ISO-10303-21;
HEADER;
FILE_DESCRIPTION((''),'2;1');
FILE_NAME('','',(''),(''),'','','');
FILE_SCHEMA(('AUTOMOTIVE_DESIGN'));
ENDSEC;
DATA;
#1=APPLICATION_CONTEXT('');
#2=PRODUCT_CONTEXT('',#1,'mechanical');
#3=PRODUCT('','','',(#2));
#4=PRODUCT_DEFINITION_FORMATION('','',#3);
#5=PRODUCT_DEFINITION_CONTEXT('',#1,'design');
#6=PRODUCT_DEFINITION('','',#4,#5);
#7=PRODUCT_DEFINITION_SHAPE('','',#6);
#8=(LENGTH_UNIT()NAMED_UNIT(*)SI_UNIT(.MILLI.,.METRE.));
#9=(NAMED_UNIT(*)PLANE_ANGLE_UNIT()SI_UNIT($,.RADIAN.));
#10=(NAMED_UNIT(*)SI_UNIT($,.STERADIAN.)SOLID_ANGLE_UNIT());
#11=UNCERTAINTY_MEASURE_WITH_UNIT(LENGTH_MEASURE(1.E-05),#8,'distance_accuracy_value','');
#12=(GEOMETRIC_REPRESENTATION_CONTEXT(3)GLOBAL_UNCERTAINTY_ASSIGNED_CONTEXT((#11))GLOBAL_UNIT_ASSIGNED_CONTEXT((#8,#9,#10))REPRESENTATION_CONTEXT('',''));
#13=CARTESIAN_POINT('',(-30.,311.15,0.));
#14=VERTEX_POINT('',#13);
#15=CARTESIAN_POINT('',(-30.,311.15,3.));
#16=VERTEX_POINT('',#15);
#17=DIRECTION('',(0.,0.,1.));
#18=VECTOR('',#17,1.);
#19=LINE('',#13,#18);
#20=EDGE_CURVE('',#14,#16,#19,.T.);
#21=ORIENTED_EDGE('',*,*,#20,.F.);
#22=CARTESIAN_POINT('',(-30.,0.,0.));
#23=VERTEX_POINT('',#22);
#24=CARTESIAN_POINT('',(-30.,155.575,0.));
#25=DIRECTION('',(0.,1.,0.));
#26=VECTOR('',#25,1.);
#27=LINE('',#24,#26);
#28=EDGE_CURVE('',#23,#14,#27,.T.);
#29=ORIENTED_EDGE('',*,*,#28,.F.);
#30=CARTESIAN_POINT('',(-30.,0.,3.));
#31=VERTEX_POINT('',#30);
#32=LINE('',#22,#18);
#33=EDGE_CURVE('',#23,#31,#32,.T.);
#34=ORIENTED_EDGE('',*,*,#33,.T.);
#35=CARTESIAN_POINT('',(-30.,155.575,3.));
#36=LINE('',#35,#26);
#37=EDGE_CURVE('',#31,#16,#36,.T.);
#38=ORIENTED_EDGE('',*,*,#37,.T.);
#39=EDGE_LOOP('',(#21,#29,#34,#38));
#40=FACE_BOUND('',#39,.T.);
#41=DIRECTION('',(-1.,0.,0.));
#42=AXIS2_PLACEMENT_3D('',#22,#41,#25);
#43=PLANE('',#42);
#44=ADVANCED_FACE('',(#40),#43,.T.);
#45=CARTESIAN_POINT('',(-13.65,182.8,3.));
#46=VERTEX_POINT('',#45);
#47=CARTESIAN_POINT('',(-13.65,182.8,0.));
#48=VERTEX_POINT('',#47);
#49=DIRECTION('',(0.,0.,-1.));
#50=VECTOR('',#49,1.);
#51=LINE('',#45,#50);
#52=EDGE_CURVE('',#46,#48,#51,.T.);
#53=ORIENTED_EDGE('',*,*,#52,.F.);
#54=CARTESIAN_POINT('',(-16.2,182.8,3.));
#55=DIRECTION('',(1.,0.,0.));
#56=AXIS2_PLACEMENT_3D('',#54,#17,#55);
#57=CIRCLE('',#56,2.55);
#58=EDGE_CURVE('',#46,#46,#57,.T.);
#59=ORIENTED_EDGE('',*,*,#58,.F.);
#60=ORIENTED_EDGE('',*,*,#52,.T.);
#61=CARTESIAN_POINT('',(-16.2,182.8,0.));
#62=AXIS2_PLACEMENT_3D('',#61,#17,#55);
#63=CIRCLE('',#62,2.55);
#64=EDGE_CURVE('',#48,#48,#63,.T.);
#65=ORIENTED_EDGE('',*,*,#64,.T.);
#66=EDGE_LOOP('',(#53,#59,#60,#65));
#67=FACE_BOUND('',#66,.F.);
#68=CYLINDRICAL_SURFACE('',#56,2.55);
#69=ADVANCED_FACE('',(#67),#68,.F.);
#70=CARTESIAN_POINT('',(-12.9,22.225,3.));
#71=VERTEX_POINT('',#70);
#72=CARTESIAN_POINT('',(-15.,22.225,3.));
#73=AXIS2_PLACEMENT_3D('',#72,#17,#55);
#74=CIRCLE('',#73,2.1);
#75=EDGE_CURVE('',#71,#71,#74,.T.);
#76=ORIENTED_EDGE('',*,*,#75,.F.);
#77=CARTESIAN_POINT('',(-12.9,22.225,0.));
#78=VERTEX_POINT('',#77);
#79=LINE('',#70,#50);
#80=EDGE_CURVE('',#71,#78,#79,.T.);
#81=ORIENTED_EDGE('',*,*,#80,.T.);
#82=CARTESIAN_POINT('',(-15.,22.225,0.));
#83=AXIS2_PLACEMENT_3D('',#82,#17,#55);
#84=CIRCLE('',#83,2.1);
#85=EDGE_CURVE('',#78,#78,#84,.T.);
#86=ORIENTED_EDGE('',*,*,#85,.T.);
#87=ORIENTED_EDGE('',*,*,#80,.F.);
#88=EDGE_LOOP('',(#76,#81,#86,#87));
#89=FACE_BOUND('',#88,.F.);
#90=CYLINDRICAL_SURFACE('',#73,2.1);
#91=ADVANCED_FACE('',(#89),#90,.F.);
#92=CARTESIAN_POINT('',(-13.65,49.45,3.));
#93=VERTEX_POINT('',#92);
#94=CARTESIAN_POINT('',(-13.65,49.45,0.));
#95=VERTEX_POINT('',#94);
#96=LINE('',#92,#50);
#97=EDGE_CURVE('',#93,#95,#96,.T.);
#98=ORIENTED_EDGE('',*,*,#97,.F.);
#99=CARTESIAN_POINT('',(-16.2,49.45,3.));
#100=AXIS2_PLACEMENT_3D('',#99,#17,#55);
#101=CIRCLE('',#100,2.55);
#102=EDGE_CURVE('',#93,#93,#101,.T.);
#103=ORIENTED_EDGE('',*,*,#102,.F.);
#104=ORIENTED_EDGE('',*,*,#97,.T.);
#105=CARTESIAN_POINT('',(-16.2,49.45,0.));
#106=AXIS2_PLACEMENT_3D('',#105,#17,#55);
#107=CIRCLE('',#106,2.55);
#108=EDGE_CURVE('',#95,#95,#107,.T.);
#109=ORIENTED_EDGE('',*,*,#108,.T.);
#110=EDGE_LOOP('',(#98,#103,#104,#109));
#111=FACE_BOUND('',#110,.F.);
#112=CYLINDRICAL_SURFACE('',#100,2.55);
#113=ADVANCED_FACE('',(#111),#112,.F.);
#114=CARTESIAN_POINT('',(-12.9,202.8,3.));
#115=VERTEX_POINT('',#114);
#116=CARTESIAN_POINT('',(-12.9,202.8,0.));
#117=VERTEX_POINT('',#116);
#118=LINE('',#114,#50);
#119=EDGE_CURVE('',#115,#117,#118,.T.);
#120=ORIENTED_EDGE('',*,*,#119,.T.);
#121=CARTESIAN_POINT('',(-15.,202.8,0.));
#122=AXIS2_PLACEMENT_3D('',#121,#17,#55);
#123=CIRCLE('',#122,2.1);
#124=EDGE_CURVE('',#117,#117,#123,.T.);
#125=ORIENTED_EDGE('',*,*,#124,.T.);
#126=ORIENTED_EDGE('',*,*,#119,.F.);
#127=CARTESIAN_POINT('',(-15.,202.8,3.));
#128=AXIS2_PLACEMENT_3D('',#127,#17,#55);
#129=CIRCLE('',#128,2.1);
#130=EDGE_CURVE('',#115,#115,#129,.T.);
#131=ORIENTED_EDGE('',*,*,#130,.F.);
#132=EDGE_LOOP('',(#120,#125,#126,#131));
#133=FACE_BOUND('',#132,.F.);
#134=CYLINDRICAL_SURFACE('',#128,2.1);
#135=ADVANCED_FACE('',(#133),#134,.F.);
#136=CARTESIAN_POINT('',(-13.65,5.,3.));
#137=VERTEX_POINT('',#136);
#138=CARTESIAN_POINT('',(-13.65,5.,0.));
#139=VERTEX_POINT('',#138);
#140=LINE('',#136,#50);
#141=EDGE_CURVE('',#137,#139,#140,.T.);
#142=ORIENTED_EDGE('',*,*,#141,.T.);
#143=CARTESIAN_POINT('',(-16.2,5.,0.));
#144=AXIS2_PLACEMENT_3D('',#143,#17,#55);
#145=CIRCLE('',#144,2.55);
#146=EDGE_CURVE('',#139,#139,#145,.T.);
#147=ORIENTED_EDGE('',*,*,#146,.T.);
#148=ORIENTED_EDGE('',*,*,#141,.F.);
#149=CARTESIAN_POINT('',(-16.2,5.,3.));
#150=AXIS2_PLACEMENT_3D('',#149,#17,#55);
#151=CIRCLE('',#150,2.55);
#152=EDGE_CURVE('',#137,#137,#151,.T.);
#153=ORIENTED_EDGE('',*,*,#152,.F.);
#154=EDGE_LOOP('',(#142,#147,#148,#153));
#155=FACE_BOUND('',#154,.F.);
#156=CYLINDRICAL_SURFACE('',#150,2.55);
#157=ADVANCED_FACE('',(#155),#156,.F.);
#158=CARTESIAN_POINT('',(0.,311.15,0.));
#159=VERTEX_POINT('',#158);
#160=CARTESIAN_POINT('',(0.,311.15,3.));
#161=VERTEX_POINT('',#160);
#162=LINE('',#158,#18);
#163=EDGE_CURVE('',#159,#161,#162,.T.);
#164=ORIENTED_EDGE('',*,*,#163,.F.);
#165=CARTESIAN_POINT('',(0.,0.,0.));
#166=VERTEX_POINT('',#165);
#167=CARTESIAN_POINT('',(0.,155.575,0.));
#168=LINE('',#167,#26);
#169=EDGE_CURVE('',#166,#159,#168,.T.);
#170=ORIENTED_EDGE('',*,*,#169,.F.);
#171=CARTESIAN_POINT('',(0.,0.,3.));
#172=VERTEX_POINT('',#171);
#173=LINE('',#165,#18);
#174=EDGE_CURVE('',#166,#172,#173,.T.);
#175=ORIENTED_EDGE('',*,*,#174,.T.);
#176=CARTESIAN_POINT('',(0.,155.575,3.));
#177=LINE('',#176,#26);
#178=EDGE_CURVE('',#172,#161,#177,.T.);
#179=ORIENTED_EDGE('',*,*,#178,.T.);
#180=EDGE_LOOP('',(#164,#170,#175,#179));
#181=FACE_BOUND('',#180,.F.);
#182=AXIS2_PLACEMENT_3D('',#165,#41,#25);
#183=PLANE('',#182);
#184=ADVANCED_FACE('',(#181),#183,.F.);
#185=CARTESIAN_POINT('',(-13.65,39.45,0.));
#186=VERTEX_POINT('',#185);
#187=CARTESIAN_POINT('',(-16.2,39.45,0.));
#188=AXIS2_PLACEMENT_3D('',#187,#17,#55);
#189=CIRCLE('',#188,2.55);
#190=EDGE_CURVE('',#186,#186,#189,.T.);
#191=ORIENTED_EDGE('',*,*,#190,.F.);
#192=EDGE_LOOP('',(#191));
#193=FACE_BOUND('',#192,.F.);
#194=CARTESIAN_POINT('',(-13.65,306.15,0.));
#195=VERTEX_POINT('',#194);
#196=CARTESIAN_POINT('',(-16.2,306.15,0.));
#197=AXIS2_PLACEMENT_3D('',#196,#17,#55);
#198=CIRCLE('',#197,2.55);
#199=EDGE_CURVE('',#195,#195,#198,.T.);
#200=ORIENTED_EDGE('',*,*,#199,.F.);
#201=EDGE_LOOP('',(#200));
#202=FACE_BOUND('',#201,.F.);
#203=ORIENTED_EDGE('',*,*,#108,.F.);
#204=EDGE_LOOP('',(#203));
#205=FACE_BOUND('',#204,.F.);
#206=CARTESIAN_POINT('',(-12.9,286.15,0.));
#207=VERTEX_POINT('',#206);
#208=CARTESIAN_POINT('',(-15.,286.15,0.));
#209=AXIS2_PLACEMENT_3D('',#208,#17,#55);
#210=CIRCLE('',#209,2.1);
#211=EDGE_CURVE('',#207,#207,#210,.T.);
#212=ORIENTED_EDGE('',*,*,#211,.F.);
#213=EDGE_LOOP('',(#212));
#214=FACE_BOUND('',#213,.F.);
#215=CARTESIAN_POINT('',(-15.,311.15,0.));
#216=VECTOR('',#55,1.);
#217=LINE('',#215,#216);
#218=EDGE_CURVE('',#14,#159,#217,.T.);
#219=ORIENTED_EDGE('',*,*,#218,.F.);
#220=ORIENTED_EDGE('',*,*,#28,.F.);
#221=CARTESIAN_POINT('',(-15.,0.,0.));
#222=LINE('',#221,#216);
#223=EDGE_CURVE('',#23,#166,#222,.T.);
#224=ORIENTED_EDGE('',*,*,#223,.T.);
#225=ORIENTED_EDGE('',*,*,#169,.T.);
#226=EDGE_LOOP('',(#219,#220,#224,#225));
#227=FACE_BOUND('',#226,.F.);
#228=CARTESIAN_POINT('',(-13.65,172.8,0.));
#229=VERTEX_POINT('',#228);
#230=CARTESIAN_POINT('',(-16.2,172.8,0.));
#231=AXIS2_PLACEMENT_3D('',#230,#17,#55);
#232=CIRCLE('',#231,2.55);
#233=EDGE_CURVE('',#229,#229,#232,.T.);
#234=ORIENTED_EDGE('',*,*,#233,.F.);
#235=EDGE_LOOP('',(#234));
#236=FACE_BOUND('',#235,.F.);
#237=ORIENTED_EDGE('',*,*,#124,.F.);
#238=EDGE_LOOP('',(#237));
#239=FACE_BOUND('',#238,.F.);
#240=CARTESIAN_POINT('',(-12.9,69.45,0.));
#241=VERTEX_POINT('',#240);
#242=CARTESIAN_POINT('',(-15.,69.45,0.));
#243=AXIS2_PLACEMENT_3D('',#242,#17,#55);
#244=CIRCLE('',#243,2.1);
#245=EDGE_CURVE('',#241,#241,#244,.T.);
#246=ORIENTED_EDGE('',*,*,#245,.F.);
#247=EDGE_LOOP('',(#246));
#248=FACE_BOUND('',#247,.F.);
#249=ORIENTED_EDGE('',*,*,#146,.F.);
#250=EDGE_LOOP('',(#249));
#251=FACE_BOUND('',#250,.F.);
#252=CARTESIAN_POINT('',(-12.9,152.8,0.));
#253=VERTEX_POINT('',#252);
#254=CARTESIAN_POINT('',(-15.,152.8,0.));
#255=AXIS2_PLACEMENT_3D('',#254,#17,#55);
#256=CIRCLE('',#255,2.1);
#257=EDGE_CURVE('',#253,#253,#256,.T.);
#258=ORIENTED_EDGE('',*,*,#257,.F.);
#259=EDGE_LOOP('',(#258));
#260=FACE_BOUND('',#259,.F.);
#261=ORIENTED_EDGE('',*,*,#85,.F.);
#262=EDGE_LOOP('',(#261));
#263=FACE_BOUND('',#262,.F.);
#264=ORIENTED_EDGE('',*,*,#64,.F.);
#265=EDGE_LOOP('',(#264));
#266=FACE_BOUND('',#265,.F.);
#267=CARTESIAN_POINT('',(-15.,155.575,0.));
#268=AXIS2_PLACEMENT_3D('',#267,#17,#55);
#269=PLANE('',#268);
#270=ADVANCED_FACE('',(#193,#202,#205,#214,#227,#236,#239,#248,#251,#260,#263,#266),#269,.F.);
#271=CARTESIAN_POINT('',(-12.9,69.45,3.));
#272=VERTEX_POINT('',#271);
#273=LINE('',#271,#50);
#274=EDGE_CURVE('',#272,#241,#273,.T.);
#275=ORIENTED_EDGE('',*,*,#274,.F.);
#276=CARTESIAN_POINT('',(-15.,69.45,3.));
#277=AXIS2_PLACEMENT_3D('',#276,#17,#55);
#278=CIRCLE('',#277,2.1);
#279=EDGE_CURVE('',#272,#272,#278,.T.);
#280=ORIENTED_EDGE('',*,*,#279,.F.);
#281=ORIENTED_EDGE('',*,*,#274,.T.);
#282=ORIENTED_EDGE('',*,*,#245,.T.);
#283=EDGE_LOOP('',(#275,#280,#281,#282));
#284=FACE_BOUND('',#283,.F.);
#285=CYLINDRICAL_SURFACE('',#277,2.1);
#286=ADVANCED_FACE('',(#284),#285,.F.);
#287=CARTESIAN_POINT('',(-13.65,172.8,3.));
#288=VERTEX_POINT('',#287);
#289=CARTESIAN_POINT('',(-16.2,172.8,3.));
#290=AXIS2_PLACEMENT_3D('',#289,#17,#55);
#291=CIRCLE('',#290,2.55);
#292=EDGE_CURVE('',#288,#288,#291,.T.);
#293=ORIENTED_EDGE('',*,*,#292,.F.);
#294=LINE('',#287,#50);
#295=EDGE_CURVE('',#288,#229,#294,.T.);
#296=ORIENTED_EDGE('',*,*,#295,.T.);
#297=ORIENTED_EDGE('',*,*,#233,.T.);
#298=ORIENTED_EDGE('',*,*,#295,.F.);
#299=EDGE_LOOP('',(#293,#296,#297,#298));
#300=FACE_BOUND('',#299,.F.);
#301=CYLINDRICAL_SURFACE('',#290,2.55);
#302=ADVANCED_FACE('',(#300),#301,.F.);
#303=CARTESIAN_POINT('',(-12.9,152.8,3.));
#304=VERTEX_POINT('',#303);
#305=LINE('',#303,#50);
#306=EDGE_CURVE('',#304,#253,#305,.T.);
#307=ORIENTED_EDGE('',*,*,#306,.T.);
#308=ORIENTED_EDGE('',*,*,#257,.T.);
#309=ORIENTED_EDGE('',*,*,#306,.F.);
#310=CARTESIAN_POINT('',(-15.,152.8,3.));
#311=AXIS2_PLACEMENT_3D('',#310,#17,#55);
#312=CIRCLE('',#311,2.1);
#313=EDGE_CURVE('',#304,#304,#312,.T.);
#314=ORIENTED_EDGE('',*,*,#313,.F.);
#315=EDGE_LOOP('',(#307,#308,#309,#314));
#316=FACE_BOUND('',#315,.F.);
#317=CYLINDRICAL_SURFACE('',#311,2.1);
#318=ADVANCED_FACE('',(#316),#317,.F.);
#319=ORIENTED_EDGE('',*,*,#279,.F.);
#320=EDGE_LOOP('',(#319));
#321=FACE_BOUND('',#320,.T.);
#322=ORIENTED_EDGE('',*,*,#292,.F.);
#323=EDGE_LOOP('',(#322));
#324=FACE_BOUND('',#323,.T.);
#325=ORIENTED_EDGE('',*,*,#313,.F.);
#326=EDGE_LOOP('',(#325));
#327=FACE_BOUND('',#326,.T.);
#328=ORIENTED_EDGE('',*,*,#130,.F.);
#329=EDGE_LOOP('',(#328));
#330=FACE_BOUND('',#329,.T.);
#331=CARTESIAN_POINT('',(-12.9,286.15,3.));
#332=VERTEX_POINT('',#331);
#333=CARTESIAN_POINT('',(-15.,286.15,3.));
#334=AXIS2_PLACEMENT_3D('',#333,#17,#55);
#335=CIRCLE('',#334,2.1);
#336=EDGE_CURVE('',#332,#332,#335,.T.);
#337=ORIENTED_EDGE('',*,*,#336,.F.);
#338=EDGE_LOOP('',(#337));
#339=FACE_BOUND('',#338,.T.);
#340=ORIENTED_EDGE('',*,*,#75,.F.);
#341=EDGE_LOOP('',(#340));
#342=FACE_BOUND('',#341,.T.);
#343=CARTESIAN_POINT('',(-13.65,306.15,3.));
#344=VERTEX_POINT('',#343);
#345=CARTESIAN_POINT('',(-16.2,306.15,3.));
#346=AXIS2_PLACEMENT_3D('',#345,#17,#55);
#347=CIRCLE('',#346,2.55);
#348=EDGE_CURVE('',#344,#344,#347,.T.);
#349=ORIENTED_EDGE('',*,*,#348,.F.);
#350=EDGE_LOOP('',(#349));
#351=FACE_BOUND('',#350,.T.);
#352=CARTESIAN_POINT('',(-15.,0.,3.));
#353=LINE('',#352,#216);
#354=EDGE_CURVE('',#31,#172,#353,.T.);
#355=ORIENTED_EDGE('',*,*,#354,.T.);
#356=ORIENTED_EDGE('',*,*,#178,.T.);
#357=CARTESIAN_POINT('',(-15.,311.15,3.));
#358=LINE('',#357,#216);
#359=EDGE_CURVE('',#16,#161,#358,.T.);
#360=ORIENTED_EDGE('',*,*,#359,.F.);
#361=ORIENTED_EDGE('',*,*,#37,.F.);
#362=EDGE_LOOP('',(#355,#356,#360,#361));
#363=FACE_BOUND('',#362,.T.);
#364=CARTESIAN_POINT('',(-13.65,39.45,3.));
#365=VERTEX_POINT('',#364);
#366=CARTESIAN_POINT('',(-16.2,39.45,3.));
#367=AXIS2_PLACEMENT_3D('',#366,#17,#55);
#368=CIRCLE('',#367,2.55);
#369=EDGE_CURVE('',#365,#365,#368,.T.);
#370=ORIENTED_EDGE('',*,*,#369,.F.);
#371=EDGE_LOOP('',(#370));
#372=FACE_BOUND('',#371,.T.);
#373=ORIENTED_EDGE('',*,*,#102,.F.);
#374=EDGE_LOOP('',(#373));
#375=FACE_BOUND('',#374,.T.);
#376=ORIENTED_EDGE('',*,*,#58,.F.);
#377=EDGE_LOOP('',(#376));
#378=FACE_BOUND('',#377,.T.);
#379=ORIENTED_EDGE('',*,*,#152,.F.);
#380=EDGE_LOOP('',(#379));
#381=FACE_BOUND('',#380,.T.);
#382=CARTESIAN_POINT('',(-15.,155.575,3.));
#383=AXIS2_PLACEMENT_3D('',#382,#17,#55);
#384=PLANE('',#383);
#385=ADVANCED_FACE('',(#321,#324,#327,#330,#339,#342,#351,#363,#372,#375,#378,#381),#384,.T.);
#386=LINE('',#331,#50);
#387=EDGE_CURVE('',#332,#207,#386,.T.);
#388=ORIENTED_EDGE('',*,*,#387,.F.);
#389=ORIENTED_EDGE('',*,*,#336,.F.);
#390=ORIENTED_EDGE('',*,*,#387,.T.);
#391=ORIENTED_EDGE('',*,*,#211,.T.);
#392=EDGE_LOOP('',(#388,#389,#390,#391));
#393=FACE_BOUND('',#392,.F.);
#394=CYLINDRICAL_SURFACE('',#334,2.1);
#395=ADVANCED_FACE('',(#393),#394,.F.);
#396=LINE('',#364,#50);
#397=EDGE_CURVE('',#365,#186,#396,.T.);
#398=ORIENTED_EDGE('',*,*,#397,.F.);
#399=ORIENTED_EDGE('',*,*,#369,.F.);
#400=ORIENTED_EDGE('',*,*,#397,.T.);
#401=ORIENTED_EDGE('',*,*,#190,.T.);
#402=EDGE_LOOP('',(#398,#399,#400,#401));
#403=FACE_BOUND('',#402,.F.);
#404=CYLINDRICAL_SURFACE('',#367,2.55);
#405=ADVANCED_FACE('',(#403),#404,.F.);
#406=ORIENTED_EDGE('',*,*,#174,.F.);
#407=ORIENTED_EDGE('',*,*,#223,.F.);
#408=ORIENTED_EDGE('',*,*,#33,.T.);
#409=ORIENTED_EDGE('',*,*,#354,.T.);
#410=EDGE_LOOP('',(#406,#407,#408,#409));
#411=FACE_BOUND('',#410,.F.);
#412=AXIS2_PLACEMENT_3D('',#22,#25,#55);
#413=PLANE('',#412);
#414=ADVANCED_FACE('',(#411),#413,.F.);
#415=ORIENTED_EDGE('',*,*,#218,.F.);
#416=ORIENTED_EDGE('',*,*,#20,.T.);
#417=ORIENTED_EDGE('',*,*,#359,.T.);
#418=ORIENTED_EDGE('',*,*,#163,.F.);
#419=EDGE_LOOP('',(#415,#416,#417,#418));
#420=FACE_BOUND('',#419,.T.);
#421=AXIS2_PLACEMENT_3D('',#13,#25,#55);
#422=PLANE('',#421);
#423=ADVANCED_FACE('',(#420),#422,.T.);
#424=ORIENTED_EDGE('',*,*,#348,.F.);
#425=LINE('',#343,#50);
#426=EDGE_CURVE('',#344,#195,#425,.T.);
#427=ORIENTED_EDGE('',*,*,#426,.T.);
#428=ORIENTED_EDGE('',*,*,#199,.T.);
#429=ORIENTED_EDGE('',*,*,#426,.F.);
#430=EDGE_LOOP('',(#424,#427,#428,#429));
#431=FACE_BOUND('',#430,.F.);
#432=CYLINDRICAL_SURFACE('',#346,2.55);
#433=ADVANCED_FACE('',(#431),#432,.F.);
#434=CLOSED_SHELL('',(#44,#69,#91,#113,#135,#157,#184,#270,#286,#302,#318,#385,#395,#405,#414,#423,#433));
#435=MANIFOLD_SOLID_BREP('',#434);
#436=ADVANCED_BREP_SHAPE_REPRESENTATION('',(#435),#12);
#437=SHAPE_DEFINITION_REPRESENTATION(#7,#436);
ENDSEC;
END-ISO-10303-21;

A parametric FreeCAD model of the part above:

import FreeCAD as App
import Part
import Sketcher
from FreeCAD import Vector
Q = App.Units.Quantity


def add_polygon(sketch, points):
    """Adds a closed chain of lines whose ends are joined by coincident constraints."""
    first, n = sketch.GeometryCount, len(points)
    for a, b in zip(points, points[1:] + points[:1]):
        sketch.addGeometry(Part.LineSegment(App.Vector(*a, 0), App.Vector(*b, 0)), False)
    for i in range(n):
        sketch.addConstraint(Sketcher.Constraint("Coincident", first + i, 2, first + (i + 1) % n, 1))

doc = App.newDocument("Part")
body = doc.addObject("PartDesign::Body", "Body")

# Sketch on XY plane
sketch1 = body.newObject("Sketcher::SketchObject", "Sketch")
sketch1.AttachmentSupport = (doc.getObject("XY_Plane"), [""])
sketch1.MapMode = "FlatFace"
add_polygon(sketch1, [(-30, 311), (-30, 0), (0, 0), (0, 311)])  # lines 0-3
sketch1.addConstraint(Sketcher.Constraint("Vertical", 0))
sketch1.addConstraint(Sketcher.Constraint("Horizontal", 1))
sketch1.addConstraint(Sketcher.Constraint("Vertical", 2))
sketch1.addConstraint(Sketcher.Constraint("Horizontal", 3))
sketch1.addConstraint(Sketcher.Constraint("Coincident", 1, 2, -1, 1))
sketch1.addConstraint(Sketcher.Constraint("DistanceX", 1, 1, 1, 2, Q("30 mm")))
sketch1.addConstraint(Sketcher.Constraint("DistanceY", 0, 2, 0, 1, Q("311.15 mm")))
pad1 = body.newObject("PartDesign::Pad", "Pad")
pad1.Profile = sketch1
pad1.Length = 3

# Sketch on XY plane
sketch2 = body.newObject("Sketcher::SketchObject", "Sketch001")
sketch2.AttachmentSupport = (doc.getObject("XY_Plane"), [""])
sketch2.MapMode = "FlatFace"
sketch2.AttachmentOffset = App.Placement(Vector(0, 0, 3), App.Rotation())
sketch2.addGeometry(Part.Circle(Vector(-16.2, 5, 0), Vector(0, 0, 1), 2.5), False)
sketch2.addGeometry(Part.Circle(Vector(-16.2, 39.5, 0), Vector(0, 0, 1), 2.5), False)
sketch2.addGeometry(Part.Circle(Vector(-16.2, 49.5, 0), Vector(0, 0, 1), 2.5), False)
sketch2.addGeometry(Part.Circle(Vector(-16.2, 172.8, 0), Vector(0, 0, 1), 2.5), False)
sketch2.addGeometry(Part.Circle(Vector(-16.2, 182.8, 0), Vector(0, 0, 1), 2.5), False)
sketch2.addGeometry(Part.Circle(Vector(-16.2, 306.1, 0), Vector(0, 0, 1), 2.5), False)
sketch2.addGeometry(Part.Circle(Vector(-15, 22.2, 0), Vector(0, 0, 1), 2.1), False)
sketch2.addGeometry(Part.Circle(Vector(-15, 69.5, 0), Vector(0, 0, 1), 2.1), False)
sketch2.addGeometry(Part.Circle(Vector(-15, 152.8, 0), Vector(0, 0, 1), 2.1), False)
sketch2.addGeometry(Part.Circle(Vector(-15, 202.8, 0), Vector(0, 0, 1), 2.1), False)
sketch2.addGeometry(Part.Circle(Vector(-15, 286.1, 0), Vector(0, 0, 1), 2.1), False)
sketch2.addConstraint(Sketcher.Constraint("Equal", 0, 1))
sketch2.addConstraint(Sketcher.Constraint("Equal", 1, 2))
sketch2.addConstraint(Sketcher.Constraint("Equal", 2, 3))
sketch2.addConstraint(Sketcher.Constraint("Equal", 3, 4))
sketch2.addConstraint(Sketcher.Constraint("Equal", 4, 5))
sketch2.addConstraint(Sketcher.Constraint("Equal", 6, 7))
sketch2.addConstraint(Sketcher.Constraint("Equal", 7, 8))
sketch2.addConstraint(Sketcher.Constraint("Equal", 8, 9))
sketch2.addConstraint(Sketcher.Constraint("Equal", 9, 10))
sketch2.addConstraint(Sketcher.Constraint("Vertical", 0, 3, 1, 3))
sketch2.addConstraint(Sketcher.Constraint("Vertical", 1, 3, 2, 3))
sketch2.addConstraint(Sketcher.Constraint("Vertical", 2, 3, 3, 3))
sketch2.addConstraint(Sketcher.Constraint("Vertical", 3, 3, 4, 3))
sketch2.addConstraint(Sketcher.Constraint("Vertical", 4, 3, 5, 3))
sketch2.addConstraint(Sketcher.Constraint("Vertical", 6, 3, 7, 3))
sketch2.addConstraint(Sketcher.Constraint("Vertical", 7, 3, 8, 3))
sketch2.addConstraint(Sketcher.Constraint("Vertical", 8, 3, 9, 3))
sketch2.addConstraint(Sketcher.Constraint("Vertical", 9, 3, 10, 3))
sketch2.addConstraint(Sketcher.Constraint("Diameter", 0, Q("5.1 mm")))
sketch2.addConstraint(Sketcher.Constraint("Diameter", 6, Q("4.2 mm")))
sketch2.addConstraint(Sketcher.Constraint("DistanceY", -1, 1, 0, 3, Q("5 mm")))
sketch2.addConstraint(Sketcher.Constraint("DistanceX", 6, 3, -1, 1, Q("15 mm")))
sketch2.addConstraint(Sketcher.Constraint("DistanceY", 1, 3, 2, 3, Q("10 mm")))
sketch2.addConstraint(Sketcher.Constraint("DistanceY", 3, 3, 4, 3, Q("10 mm")))
sketch2.addConstraint(Sketcher.Constraint("DistanceY", 2, 3, 7, 3, Q("20 mm")))
sketch2.addConstraint(Sketcher.Constraint("DistanceY", 8, 3, 3, 3, Q("20 mm")))
sketch2.addConstraint(Sketcher.Constraint("DistanceY", 4, 3, 9, 3, Q("20 mm")))
sketch2.addConstraint(Sketcher.Constraint("DistanceY", 10, 3, 5, 3, Q("20 mm")))
sketch2.addConstraint(Sketcher.Constraint("DistanceX", 0, 3, -1, 1, Q("16.2 mm")))
sketch2.addConstraint(Sketcher.Constraint("DistanceY", -1, 1, 3, 3, Q("172.8 mm")))
sketch2.addConstraint(Sketcher.Constraint("DistanceY", 2, 3, 5, 3, Q("256.7 mm")))
sketch2.addConstraint(Sketcher.Constraint("DistanceY", -1, 1, 1, 3, Q("39.45 mm")))
sketch2.addConstraint(Sketcher.Constraint("DistanceY", -1, 1, 6, 3, Q("22.225 mm")))
pocket1 = body.newObject("PartDesign::Pocket", "Pocket")
pocket1.Profile = sketch2
pocket1.Type = "ThroughAll"

doc.recompute()
